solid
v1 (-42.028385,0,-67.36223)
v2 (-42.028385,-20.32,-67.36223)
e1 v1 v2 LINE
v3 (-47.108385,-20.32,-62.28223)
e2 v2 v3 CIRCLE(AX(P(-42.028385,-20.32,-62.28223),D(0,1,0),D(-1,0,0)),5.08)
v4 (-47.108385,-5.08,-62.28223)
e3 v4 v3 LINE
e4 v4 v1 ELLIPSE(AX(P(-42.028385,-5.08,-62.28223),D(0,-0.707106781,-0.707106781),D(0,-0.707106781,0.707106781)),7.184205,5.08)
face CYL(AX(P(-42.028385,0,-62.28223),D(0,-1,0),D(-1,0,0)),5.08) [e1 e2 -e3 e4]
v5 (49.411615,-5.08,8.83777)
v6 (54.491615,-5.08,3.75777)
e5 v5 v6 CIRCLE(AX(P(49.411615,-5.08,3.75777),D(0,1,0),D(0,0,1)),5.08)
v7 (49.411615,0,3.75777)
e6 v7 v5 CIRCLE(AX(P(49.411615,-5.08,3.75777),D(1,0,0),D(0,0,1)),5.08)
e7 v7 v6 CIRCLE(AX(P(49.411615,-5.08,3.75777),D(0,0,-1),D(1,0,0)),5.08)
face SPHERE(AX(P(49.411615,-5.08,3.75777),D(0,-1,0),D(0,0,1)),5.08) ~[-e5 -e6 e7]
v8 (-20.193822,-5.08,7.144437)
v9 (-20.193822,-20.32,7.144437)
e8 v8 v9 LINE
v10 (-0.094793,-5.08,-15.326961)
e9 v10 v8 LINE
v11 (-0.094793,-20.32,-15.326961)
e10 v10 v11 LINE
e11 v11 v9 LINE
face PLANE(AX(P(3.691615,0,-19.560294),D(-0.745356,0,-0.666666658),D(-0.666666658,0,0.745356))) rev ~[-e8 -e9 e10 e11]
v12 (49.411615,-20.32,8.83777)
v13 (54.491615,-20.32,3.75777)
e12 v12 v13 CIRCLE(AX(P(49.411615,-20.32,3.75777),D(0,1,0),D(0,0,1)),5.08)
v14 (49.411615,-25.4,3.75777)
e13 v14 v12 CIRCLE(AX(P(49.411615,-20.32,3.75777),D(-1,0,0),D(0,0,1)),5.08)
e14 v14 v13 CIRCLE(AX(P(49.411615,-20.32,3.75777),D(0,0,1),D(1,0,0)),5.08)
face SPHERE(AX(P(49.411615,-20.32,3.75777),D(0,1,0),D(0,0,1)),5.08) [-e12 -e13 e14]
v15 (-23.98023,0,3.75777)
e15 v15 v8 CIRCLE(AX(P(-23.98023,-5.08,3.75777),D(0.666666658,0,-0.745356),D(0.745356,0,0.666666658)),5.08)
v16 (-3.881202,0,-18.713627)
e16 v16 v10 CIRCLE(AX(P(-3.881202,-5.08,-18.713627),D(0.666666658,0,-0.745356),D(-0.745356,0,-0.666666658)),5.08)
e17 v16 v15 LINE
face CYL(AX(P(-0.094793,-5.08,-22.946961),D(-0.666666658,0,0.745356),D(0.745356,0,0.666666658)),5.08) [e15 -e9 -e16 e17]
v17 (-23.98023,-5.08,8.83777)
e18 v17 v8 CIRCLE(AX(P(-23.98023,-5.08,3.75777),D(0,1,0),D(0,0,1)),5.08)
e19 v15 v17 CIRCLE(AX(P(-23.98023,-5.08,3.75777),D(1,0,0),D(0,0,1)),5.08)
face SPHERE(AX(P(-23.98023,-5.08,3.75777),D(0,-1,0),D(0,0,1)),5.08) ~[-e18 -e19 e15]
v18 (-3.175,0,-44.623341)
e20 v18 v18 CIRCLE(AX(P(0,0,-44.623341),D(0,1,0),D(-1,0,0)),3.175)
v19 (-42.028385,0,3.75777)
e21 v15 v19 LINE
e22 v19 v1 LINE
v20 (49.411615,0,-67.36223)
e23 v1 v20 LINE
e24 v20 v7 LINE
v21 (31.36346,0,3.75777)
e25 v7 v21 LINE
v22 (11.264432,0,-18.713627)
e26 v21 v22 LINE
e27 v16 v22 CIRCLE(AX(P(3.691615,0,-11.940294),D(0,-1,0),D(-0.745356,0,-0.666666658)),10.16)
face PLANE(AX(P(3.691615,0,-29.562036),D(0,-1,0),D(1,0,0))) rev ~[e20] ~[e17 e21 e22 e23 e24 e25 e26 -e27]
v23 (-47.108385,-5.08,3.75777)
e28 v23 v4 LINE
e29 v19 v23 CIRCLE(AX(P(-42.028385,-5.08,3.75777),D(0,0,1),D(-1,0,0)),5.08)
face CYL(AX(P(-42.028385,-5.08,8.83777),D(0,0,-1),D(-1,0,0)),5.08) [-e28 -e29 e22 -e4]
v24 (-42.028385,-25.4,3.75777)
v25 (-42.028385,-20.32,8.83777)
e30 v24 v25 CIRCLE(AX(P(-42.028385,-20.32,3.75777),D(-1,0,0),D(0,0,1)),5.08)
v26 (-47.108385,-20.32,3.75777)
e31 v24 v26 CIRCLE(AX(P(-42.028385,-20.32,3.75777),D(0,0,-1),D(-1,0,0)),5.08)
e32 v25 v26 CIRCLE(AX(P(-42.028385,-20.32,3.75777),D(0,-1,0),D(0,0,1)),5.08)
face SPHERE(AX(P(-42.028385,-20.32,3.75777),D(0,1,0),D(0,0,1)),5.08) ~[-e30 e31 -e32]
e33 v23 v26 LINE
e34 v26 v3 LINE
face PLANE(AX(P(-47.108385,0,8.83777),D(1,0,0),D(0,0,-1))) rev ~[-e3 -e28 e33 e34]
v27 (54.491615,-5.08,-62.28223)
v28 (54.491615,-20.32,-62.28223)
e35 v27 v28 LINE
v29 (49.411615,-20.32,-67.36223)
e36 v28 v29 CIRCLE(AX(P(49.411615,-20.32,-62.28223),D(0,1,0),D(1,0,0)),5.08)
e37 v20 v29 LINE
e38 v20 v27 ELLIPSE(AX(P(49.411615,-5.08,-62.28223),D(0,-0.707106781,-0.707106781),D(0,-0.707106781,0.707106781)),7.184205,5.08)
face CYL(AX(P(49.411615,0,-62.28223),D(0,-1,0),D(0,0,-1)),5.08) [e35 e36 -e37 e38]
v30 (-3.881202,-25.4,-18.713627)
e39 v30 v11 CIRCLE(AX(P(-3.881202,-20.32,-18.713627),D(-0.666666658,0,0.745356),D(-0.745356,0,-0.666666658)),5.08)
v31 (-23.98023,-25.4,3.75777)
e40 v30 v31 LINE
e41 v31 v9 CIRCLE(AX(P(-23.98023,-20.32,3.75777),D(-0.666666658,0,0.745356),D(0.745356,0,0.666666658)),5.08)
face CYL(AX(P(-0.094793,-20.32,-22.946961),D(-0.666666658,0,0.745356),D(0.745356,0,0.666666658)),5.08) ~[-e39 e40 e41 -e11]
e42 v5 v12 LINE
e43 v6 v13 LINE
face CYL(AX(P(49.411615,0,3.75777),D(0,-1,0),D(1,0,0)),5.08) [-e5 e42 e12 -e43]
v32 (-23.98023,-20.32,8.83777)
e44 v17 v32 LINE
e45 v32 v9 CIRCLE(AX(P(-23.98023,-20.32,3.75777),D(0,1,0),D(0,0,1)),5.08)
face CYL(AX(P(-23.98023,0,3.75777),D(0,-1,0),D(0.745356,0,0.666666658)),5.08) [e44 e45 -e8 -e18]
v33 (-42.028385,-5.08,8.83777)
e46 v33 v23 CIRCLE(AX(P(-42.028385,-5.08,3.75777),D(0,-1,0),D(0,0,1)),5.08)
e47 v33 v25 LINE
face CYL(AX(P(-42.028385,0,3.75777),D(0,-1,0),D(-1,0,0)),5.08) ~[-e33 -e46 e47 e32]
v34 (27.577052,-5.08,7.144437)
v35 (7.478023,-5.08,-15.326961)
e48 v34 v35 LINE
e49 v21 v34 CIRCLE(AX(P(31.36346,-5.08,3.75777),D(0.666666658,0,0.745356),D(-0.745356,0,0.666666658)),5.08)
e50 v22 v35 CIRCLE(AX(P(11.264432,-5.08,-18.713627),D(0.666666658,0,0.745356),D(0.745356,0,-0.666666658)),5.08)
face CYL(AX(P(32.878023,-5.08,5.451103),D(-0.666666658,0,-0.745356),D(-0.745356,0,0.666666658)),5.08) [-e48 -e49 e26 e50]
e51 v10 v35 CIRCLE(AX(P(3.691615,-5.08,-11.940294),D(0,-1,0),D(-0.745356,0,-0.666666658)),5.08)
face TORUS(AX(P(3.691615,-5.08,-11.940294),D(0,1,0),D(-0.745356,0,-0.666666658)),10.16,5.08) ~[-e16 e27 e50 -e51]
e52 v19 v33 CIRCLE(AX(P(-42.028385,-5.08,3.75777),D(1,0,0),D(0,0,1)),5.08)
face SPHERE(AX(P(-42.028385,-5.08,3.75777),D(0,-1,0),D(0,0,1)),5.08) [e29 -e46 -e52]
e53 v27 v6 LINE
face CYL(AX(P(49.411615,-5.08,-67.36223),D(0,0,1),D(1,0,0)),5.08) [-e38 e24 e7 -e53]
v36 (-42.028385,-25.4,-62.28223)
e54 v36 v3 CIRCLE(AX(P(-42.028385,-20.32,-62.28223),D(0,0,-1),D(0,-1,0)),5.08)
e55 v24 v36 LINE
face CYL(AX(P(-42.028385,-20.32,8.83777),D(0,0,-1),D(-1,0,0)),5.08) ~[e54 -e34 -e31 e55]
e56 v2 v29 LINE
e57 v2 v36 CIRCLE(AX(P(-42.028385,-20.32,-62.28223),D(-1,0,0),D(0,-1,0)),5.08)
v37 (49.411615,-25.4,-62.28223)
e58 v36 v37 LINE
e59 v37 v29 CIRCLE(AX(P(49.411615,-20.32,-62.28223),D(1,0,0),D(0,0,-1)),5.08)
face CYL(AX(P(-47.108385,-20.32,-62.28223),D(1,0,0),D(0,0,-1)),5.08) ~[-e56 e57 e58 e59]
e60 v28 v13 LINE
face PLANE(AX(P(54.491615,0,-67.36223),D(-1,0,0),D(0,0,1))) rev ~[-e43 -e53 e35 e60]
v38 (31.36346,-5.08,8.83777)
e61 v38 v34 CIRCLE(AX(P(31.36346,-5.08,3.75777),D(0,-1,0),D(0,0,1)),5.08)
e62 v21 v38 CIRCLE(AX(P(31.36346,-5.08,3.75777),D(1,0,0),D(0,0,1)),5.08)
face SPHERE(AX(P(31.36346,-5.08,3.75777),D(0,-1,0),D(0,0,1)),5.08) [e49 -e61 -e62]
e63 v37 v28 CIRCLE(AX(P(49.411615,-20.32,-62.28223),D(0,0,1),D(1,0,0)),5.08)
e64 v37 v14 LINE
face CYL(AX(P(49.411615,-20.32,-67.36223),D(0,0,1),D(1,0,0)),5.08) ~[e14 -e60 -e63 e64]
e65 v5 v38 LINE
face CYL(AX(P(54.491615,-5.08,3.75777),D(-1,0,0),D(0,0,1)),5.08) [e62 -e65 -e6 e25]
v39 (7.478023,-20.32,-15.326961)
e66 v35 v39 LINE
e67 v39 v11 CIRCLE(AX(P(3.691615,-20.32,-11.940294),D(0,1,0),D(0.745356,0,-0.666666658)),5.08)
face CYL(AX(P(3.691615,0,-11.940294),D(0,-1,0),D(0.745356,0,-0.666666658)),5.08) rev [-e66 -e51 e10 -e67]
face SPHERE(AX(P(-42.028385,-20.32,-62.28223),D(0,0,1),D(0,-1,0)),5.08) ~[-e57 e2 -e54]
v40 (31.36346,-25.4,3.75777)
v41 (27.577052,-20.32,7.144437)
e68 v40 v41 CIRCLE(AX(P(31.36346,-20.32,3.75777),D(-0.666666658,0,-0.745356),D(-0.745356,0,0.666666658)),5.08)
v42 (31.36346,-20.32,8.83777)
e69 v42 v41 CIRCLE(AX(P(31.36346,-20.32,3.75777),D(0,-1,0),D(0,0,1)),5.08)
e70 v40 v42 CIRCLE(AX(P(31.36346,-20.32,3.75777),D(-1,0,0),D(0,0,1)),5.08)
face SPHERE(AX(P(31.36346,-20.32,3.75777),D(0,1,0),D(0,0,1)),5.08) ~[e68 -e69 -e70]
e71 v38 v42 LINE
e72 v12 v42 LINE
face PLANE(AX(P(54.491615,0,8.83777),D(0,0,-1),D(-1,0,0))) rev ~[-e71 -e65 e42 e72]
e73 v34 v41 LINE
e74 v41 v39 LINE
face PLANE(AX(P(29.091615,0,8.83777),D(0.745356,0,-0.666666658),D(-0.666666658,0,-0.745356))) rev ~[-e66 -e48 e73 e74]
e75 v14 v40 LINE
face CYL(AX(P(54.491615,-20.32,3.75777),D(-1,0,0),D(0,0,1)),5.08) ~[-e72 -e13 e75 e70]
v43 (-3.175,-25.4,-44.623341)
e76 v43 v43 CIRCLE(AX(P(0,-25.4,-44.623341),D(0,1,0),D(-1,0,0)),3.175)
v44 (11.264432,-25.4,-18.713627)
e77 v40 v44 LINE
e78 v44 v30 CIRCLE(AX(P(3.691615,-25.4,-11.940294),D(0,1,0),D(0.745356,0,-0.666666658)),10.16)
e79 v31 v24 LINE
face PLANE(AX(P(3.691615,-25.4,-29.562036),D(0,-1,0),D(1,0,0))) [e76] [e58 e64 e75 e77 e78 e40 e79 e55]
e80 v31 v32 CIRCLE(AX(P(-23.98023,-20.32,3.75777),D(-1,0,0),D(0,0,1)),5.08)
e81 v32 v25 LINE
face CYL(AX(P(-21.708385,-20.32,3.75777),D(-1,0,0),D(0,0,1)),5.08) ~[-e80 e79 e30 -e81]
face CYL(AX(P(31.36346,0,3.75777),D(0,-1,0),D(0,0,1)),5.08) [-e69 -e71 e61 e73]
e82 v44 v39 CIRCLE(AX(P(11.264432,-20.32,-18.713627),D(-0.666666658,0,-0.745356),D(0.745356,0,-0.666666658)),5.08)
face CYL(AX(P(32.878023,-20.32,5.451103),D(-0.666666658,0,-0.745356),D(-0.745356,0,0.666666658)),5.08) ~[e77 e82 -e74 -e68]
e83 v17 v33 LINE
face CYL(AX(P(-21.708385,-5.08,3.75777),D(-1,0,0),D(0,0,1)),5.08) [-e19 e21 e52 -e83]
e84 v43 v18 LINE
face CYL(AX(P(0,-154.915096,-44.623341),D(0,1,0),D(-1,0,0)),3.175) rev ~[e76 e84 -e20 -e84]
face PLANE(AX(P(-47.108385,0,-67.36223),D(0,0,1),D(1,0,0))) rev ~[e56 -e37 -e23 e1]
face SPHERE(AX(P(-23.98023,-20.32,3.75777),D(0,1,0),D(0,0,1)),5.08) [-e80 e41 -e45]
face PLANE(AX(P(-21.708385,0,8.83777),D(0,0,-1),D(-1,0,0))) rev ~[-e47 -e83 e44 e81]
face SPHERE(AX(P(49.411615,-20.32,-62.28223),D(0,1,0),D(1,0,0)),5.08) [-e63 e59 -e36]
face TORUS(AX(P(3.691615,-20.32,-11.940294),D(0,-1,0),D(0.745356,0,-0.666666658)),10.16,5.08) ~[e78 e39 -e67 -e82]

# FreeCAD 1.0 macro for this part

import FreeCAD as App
import Part
import Sketcher
from FreeCAD import Vector
Q = App.Units.Quantity


def edges_at(feature, points):
    """Names of the edges that pass closest to the given points."""
    edges = feature.Shape.Edges
    near = lambda p: min(range(len(edges)), key=lambda i: edges[i].distToShape(Part.Vertex(*p))[0])
    return sorted({f"Edge{near(p) + 1}" for p in points})

doc = App.newDocument("Part")
params = doc.addObject("Spreadsheet::Sheet", "Params")
for row, (alias, value) in enumerate([
    ("sketch1_width", "4 in"),
    ("sketch1_width2", "1 in"),
    ("sketch1_height", "3 in"),
    ("sketch1_length", "1.5 in"),
    ("pad1_length", "1 in"),
    ("fillet_radius", "0.2 in"),
    ("sketch2_diameter", "0.25 in"),
    ("hole_diameter", "0.25 in"),
], start=1):
    params.set(f"A{row}", alias)
    params.set(f"B{row}", "=" + value)
    params.setAlias(f"B{row}", alias)

body = doc.addObject("PartDesign::Body", "Body")

sketch1 = doc.addObject("Sketcher::SketchObject", "Sketch")
body.addObject(sketch1)
sketch1.AttachmentSupport = (doc.XZ_Plane, [""])
sketch1.MapMode = "FlatFace"
sketch1.addGeometry([
    Part.LineSegment(Vector(-47, 9, 0), Vector(-47, -67, 0)),
    Part.LineSegment(Vector(-47, -67, 0), Vector(54, -67, 0)),
    Part.LineSegment(Vector(54, -67, 0), Vector(54, 9, 0)),
    Part.LineSegment(Vector(54, 9, 0), Vector(29, 9, 0)),
    Part.LineSegment(Vector(29, 9, 0), Vector(4, -20, 0)),
    Part.LineSegment(Vector(4, -20, 0), Vector(-22, 9, 0)),
    Part.LineSegment(Vector(-22, 9, 0), Vector(-47, 9, 0)),
], False)
sketch1.addConstraint([
    Sketcher.Constraint("Coincident", 0, 2, 1, 1),
    Sketcher.Constraint("Coincident", 1, 2, 2, 1),
    Sketcher.Constraint("Coincident", 2, 2, 3, 1),
    Sketcher.Constraint("Coincident", 3, 2, 4, 1),
    Sketcher.Constraint("Coincident", 4, 2, 5, 1),
    Sketcher.Constraint("Coincident", 5, 2, 6, 1),
    Sketcher.Constraint("Coincident", 6, 2, 0, 1),
    Sketcher.Constraint("Vertical", 0),
    Sketcher.Constraint("Horizontal", 1),
    Sketcher.Constraint("Vertical", 2),
    Sketcher.Constraint("Horizontal", 3),
    Sketcher.Constraint("Horizontal", 6),
    Sketcher.Constraint("Horizontal", 3, 2, 5, 2),
    Sketcher.Constraint("Equal", 3, 6),
    Sketcher.Constraint("Equal", 4, 5),
    Sketcher.Constraint("DistanceX", 1, 1, 1, 2, Q("4 in")),
    Sketcher.Constraint("DistanceX", 3, 2, 3, 1, Q("1 in")),
    Sketcher.Constraint("DistanceY", 0, 2, 0, 1, Q("3 in")),
    Sketcher.Constraint("Distance", 4, Q("1.5 in")),
    Sketcher.Constraint("DistanceY", 0, 2, -1, 1, Q("67.36223 mm")),
    Sketcher.Constraint("DistanceX", 0, 2, -1, 1, Q("47.108385 mm")),
])
sketch1.setExpression("Constraints[15]", "Params.sketch1_width")
sketch1.setExpression("Constraints[16]", "Params.sketch1_width2")
sketch1.setExpression("Constraints[17]", "Params.sketch1_height")
sketch1.setExpression("Constraints[18]", "Params.sketch1_length")
pad1 = doc.addObject("PartDesign::Pad", "Pad")
body.addObject(pad1)
pad1.Profile = sketch1
pad1.setExpression("Length", "Params.pad1_length")
doc.recompute()

fillet = doc.addObject("PartDesign::Fillet", "Fillet")
body.addObject(fillet)
fillet.Base = (pad1, edges_at(pad1, [
    (-21.708, -12.7, 8.838),
    (-47.108, -12.7, 8.838),
    (-34.408, 0, 8.838),
    (-34.408, -25.4, 8.838),
    (54.492, -12.7, 8.838),
    (29.092, -12.7, 8.838),
    (41.792, 0, 8.838),
    (41.792, -25.4, 8.838),
    (54.492, -12.7, -67.362),
    (54.492, 0, -29.262),
    (54.492, -25.4, -29.262),
    (-47.108, -25.4, -29.262),
    (3.692, -25.4, -67.362),
    (16.392, -25.4, -5.361),
    (-9.008, -25.4, -5.361),
    (3.692, -12.7, -19.56),
    (-9.008, 0, -5.361),
    (16.392, 0, -5.361),
    (-47.108, -12.7, -67.362),
    (-47.108, 0, -29.262),
]))
fillet.setExpression("Radius", "Params.fillet_radius")

sketch2 = doc.addObject("Sketcher::SketchObject", "Sketch001")
body.addObject(sketch2)
sketch2.AttachmentSupport = (doc.XZ_Plane, [""])
sketch2.MapMode = "FlatFace"
sketch2.AttachmentOffset = App.Placement(Vector(0, 0, 1 * 25.4), App.Rotation())
sketch2.addGeometry(Part.Circle(Vector(0, -44.6, 0), Vector(0, 0, 1), 3.2), False)
sketch2.addConstraint([
    Sketcher.Constraint("PointOnObject", 0, 3, -2),
    Sketcher.Constraint("Diameter", 0, Q("0.25 in")),
    Sketcher.Constraint("DistanceY", 0, 3, -1, 1, Q("44.623341 mm")),
])
sketch2.setExpression("Constraints[1]", "Params.sketch2_diameter")
doc.recompute()
hole = doc.addObject("PartDesign::Hole", "Hole")
body.addObject(hole)
hole.Profile = sketch2
hole.ThreadType = "None"
hole.setExpression("Diameter", "Params.hole_diameter")
hole.DepthType = "ThroughAll"

doc.recompute()
